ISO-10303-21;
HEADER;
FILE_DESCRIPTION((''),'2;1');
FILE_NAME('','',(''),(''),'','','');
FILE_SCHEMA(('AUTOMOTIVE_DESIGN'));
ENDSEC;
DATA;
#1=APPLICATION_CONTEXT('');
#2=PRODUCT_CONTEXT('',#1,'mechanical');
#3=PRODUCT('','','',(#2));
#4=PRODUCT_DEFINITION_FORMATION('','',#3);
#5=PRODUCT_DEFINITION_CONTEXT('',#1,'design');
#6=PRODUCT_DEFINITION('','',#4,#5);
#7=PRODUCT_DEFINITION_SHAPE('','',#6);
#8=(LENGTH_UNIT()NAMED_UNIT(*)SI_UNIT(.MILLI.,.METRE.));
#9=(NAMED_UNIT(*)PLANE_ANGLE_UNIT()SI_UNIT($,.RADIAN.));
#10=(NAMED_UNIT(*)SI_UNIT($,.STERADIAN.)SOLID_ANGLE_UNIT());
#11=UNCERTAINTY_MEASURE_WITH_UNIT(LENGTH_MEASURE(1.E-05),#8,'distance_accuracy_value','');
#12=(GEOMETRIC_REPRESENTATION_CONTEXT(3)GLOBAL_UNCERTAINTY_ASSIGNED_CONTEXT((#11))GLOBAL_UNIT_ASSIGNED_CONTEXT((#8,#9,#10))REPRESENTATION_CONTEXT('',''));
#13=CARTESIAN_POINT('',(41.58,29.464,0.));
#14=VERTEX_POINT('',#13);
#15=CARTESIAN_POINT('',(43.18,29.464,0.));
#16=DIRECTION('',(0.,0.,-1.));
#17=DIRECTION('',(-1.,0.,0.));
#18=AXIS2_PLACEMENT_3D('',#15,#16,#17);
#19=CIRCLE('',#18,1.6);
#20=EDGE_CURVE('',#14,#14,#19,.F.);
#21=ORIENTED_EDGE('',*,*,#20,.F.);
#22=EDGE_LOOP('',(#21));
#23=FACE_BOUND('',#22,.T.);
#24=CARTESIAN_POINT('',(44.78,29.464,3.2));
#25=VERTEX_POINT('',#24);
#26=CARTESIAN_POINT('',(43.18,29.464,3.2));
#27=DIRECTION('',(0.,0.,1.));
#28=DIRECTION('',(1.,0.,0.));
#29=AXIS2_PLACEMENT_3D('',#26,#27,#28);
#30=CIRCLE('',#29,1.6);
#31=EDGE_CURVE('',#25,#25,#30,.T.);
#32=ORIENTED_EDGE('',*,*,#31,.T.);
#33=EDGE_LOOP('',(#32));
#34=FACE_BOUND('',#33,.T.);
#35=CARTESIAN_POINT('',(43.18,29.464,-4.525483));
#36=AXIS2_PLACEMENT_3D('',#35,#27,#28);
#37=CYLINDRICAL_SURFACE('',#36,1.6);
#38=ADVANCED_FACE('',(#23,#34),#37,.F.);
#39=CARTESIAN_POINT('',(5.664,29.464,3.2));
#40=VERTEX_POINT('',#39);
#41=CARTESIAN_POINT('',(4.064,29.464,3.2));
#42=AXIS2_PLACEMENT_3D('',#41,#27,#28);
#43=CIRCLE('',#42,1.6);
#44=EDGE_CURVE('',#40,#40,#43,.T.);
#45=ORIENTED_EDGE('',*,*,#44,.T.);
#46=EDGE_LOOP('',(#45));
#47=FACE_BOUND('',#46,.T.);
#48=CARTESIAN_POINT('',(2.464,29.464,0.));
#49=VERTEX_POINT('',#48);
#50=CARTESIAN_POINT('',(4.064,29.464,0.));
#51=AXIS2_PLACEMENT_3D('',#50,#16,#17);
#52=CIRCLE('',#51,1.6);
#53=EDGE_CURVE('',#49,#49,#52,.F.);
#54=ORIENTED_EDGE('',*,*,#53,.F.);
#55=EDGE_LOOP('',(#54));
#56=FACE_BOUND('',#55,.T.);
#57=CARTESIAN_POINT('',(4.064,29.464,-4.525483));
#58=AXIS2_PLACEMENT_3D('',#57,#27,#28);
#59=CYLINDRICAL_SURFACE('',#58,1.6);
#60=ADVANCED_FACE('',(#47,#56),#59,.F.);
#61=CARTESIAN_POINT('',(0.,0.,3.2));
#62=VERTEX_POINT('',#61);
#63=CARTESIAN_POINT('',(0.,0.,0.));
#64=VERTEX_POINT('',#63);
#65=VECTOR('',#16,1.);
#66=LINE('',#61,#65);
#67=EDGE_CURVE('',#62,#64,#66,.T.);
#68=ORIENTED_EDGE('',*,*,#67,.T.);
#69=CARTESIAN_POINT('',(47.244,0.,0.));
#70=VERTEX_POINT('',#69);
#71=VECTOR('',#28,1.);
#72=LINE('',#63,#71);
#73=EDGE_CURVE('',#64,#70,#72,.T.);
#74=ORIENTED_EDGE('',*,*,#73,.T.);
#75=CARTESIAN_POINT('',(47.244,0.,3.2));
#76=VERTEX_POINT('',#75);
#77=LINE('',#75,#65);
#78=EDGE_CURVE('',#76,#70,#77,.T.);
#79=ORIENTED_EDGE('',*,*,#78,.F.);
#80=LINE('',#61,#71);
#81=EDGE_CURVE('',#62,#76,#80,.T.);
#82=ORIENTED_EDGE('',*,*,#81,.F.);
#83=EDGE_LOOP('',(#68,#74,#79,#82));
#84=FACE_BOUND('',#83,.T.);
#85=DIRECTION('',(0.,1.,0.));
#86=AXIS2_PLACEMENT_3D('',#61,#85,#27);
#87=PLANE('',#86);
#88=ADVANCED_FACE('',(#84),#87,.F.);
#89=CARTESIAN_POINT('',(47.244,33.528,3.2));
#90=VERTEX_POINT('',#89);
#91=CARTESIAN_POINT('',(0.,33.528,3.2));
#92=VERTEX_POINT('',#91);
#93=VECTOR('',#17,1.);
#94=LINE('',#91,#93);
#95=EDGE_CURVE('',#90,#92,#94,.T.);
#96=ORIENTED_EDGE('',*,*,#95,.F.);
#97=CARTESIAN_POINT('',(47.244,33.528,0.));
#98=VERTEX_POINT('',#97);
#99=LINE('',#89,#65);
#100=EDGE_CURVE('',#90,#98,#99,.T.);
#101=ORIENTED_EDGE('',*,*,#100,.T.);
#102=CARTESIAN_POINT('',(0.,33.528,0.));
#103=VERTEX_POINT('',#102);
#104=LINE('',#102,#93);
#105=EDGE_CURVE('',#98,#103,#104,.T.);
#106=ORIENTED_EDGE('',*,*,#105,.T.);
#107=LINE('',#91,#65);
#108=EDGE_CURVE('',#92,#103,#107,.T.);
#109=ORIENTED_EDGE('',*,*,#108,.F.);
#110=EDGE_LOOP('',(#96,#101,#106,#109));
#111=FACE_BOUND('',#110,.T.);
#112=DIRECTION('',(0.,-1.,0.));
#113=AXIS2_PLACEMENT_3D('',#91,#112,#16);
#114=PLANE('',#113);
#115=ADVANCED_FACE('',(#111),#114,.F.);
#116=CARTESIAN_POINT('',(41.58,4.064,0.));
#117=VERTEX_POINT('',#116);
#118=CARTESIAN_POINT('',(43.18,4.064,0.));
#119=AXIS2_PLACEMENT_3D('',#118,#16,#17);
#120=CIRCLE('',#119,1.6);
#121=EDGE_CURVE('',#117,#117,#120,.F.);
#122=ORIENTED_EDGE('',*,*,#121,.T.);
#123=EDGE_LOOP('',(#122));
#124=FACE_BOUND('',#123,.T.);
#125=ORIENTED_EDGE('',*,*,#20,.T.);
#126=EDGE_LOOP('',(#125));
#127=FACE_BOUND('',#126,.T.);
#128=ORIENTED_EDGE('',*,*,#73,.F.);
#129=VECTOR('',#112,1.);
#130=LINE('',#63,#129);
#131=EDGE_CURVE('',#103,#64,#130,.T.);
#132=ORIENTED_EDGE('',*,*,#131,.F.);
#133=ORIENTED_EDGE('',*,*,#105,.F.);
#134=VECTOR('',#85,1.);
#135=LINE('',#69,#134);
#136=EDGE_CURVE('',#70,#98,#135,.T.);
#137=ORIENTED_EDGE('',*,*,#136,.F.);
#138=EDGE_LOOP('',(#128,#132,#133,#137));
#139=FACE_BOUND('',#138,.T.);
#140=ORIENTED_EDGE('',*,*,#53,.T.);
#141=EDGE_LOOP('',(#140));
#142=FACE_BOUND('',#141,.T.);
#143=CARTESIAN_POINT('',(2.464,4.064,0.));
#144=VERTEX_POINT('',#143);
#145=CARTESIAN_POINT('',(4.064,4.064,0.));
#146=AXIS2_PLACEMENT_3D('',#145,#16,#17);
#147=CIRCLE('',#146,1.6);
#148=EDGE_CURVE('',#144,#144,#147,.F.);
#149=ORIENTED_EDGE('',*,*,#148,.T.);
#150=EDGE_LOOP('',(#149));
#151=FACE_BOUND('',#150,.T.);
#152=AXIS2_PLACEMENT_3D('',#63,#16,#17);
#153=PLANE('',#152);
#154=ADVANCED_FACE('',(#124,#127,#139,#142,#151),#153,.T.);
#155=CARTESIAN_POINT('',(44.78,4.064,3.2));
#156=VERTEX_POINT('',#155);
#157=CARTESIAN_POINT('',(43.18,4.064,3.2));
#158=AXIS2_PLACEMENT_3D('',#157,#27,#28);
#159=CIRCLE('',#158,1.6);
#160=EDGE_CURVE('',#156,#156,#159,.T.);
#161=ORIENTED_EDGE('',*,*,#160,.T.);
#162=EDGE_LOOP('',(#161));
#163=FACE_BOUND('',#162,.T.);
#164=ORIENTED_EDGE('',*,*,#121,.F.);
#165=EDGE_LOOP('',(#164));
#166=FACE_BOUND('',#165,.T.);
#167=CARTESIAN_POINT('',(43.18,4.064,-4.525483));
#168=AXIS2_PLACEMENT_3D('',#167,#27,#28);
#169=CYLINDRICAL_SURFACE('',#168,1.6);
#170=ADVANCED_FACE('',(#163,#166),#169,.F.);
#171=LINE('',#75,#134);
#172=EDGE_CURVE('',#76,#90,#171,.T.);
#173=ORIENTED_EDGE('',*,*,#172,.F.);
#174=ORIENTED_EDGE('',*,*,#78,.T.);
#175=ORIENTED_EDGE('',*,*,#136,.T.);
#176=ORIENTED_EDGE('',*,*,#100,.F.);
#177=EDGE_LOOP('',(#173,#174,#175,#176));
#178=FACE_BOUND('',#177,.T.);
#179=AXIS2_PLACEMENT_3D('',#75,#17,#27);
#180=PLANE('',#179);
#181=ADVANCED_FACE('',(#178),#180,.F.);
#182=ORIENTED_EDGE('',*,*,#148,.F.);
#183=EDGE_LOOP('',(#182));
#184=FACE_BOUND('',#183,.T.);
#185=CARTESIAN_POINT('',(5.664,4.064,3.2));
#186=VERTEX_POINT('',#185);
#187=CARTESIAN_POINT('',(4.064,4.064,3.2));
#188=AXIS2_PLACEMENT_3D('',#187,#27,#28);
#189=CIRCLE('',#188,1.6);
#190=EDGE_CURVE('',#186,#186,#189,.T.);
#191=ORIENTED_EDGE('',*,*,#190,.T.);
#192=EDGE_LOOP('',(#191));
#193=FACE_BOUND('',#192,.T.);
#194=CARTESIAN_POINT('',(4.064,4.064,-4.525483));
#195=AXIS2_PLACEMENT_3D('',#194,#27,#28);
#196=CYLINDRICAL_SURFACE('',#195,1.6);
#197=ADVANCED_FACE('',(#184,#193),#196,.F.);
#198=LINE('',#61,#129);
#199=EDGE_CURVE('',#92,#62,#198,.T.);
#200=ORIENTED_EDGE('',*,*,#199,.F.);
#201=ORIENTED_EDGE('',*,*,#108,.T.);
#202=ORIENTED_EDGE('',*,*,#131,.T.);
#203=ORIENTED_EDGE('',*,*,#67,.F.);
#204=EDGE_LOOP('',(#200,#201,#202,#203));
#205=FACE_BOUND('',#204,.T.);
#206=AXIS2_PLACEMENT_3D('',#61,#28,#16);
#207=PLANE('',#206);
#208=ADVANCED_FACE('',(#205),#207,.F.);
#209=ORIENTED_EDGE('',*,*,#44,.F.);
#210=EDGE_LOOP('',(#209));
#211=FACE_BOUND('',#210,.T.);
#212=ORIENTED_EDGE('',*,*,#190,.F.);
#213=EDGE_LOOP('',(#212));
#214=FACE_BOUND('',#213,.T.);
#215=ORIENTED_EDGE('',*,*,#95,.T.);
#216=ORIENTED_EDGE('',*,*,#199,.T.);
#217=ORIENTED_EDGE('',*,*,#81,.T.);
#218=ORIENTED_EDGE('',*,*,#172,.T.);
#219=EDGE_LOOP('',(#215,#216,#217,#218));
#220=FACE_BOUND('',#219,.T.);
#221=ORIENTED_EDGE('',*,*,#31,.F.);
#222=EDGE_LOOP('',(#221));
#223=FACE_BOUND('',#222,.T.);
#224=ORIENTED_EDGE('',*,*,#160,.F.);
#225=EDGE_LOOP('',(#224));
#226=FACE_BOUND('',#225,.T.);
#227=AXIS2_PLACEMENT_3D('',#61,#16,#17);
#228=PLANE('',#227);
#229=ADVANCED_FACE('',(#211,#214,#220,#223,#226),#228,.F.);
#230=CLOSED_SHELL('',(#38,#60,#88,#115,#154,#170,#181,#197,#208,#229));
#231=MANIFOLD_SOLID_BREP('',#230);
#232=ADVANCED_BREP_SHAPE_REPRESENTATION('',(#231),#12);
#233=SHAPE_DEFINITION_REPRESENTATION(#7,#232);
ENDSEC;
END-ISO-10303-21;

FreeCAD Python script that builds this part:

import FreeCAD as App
import Part
import Sketcher

V = App.Vector
Q = App.Units.Quantity


def add_polygon(sketch, points):
    """Adds a closed chain of lines whose ends are joined by coincident constraints."""
    first, n = sketch.GeometryCount, len(points)
    for a, b in zip(points, points[1:] + points[:1]):
        sketch.addGeometry(Part.LineSegment(App.Vector(*a, 0), App.Vector(*b, 0)), False)
    for i in range(n):
        sketch.addConstraint(Sketcher.Constraint("Coincident", first + i, 2, first + (i + 1) % n, 1))

doc = App.newDocument("Part")
body = doc.addObject("PartDesign::Body", "Body")

sketch1 = body.newObject("Sketcher::SketchObject", "Sketch")
sketch1.AttachmentSupport = (doc.getObject("XY_Plane"), [""])
sketch1.MapMode = "FlatFace"
add_polygon(sketch1, [(0, 34), (0, 0), (47, 0), (47, 34)])
sketch1.addConstraint([
    Sketcher.Constraint("Vertical", 0),
    Sketcher.Constraint("Horizontal", 1),
    Sketcher.Constraint("Vertical", 2),
    Sketcher.Constraint("Horizontal", 3),
    Sketcher.Constraint("Coincident", 0, 2, -1, 1),
    Sketcher.Constraint("DistanceX", 1, 1, 1, 2, Q("1.86 in")),
    Sketcher.Constraint("DistanceY", 0, 2, 0, 1, Q("1.32 in")),
])
pad1 = body.newObject("PartDesign::Pad", "Pad")
pad1.Profile = sketch1
pad1.Length = 3.2

sketch2 = body.newObject("Sketcher::SketchObject", "Sketch001")
sketch2.AttachmentSupport = (doc.getObject("XY_Plane"), [""])
sketch2.MapMode = "FlatFace"
sketch2.AttachmentOffset = App.Placement(V(0, 0, 3.2), App.Rotation())
sketch2.addGeometry([
    Part.Circle(V(4.1, 29.5, 0), V(0, 0, 1), 1.6),
    Part.Circle(V(43.2, 29.5, 0), V(0, 0, 1), 1.6),
    Part.Circle(V(43.2, 4.1, 0), V(0, 0, 1), 1.6),
    Part.Circle(V(4.1, 4.1, 0), V(0, 0, 1), 1.6),
], False)
sketch2.addConstraint([
    Sketcher.Constraint("Equal", 0, 1),
    Sketcher.Constraint("Equal", 1, 2),
    Sketcher.Constraint("Equal", 2, 3),
    Sketcher.Constraint("Horizontal", 0, 3, 1, 3),
    Sketcher.Constraint("Horizontal", 2, 3, 3, 3),
    Sketcher.Constraint("Vertical", 1, 3, 2, 3),
    Sketcher.Constraint("Vertical", 0, 3, 3, 3),
    Sketcher.Constraint("DistanceY", 2, 3, 1, 3, Q("1 in")),
    Sketcher.Constraint("DistanceX", -1, 1, 1, 3, Q("1.7 in")),
    Sketcher.Constraint("Diameter", 0, 3.2),
    Sketcher.Constraint("DistanceX", -1, 1, 0, 3, Q("0.16 in")),
    Sketcher.Constraint("DistanceY", -1, 1, 0, 3, Q("1.16 in")),
])
pocket1 = body.newObject("PartDesign::Pocket", "Pocket")
pocket1.Profile = sketch2
pocket1.Length = 3.2

doc.recompute()
